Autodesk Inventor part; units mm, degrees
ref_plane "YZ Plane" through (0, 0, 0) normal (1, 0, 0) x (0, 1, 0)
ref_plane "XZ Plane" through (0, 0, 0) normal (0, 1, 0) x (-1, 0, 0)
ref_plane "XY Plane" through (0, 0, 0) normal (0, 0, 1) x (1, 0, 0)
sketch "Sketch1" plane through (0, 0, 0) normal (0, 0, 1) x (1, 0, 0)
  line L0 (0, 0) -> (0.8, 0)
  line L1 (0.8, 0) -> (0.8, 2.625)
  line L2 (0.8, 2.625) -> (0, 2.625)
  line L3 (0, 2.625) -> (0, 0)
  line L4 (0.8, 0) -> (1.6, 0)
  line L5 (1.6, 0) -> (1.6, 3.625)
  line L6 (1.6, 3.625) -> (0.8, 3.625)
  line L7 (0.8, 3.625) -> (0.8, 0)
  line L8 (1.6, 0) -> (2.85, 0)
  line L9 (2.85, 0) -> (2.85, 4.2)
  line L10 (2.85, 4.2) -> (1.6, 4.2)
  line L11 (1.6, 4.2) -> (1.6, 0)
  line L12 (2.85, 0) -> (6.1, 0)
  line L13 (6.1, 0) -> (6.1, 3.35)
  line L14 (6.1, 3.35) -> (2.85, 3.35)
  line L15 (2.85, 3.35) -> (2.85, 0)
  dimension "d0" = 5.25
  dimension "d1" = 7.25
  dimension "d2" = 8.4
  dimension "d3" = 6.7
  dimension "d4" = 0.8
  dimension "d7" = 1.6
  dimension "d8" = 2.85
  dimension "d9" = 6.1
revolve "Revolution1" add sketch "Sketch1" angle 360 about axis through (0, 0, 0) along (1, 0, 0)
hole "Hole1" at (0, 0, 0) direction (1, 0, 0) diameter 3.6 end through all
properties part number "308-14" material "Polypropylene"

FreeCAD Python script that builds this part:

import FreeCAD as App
import Part
import Sketcher

V = App.Vector


def add_polygon(sketch, points):
    """Adds a closed chain of lines whose ends are joined by coincident constraints."""
    first, n = sketch.GeometryCount, len(points)
    for a, b in zip(points, points[1:] + points[:1]):
        sketch.addGeometry(Part.LineSegment(App.Vector(*a, 0), App.Vector(*b, 0)), False)
    for i in range(n):
        sketch.addConstraint(Sketcher.Constraint("Coincident", first + i, 2, first + (i + 1) % n, 1))

doc = App.newDocument("Part")
params = doc.addObject("Spreadsheet::Sheet", "Params")
for row, (alias, value) in enumerate([
    ("sketch1_width", "6.1 mm"),
    ("sketch1_width2", "0.8 mm"),
    ("sketch1_height", "1 mm"),
    ("sketch1_height2", "3.35 mm"),
    ("sketch1_height3", "0.85 mm"),
    ("revolution_angle", "360 deg"),
    ("sketch2_diameter", "3.6 mm"),
    ("hole_diameter", "3.6 mm"),
], start=1):
    params.set(f"A{row}", alias)
    params.set(f"B{row}", "=" + value)
    params.setAlias(f"B{row}", alias)

body = doc.addObject("PartDesign::Body", "Body")

# Sketch on XY plane
sketch1 = body.newObject("Sketcher::SketchObject", "Sketch")
sketch1.AttachmentSupport = (doc.getObject("XY_Plane"), [""])
sketch1.MapMode = "FlatFace"
add_polygon(sketch1, [(0, 2.6), (0, 0), (6.1, 0), (6.1, 3.4), (2.9, 3.4), (2.9, 4.2), (1.6, 4.2), (1.6, 3.6), (0.8, 3.6), (0.8, 2.6)])  # lines 0-9
sketch1.addConstraint([
    Sketcher.Constraint("Vertical", 0),
    Sketcher.Constraint("Horizontal", 1),
    Sketcher.Constraint("Vertical", 2),
    Sketcher.Constraint("Horizontal", 3),
    Sketcher.Constraint("Vertical", 4),
    Sketcher.Constraint("Horizontal", 5),
    Sketcher.Constraint("Vertical", 6),
    Sketcher.Constraint("Horizontal", 7),
    Sketcher.Constraint("Vertical", 8),
    Sketcher.Constraint("Horizontal", 9),
    Sketcher.Constraint("Coincident", 0, 2, -1, 1),
    Sketcher.Constraint("Equal", 7, 9),
    Sketcher.Constraint("DistanceX", 1, 1, 1, 2, 6.1),
    Sketcher.Constraint("DistanceX", 7, 2, 7, 1, 0.8),
    Sketcher.Constraint("DistanceY", 8, 2, 8, 1, 1.0),
    Sketcher.Constraint("DistanceX", -1, 1, 3, 2, 2.85),
    Sketcher.Constraint("DistanceY", 2, 1, 2, 2, 3.35),
    Sketcher.Constraint("DistanceY", 4, 1, 4, 2, 0.85),
    Sketcher.Constraint("DistanceY", 0, 2, 0, 1, 2.625),
])
sketch1.setExpression("Constraints[22]", "Params.sketch1_width")
sketch1.setExpression("Constraints[23]", "Params.sketch1_width2")
sketch1.setExpression("Constraints[24]", "Params.sketch1_height")
sketch1.setExpression("Constraints[26]", "Params.sketch1_height2")
sketch1.setExpression("Constraints[27]", "Params.sketch1_height3")
revolution = body.newObject("PartDesign::Revolution", "Revolution")
revolution.Profile = sketch1
revolution.ReferenceAxis = (sketch1, ["H_Axis"])
revolution.setExpression("Angle", "Params.revolution_angle")

# Sketch on YZ plane
sketch2 = body.newObject("Sketcher::SketchObject", "Sketch001")
sketch2.AttachmentSupport = (doc.getObject("YZ_Plane"), [""])
sketch2.MapMode = "FlatFace"
sketch2.addGeometry(Part.Circle(V(0, 0, 0), V(0, 0, 1), 1.8), False)
sketch2.addConstraint([
    Sketcher.Constraint("Coincident", 0, 3, -1, 1),
    Sketcher.Constraint("Diameter", 0, 3.6),
])
sketch2.setExpression("Constraints[1]", "Params.sketch2_diameter")
doc.recompute()
hole = body.newObject("PartDesign::Hole", "Hole")
hole.Profile = sketch2
hole.ThreadType = "None"
hole.setExpression("Diameter", "Params.hole_diameter")
hole.DepthType = "ThroughAll"
hole.Reversed = True

doc.recompute()
